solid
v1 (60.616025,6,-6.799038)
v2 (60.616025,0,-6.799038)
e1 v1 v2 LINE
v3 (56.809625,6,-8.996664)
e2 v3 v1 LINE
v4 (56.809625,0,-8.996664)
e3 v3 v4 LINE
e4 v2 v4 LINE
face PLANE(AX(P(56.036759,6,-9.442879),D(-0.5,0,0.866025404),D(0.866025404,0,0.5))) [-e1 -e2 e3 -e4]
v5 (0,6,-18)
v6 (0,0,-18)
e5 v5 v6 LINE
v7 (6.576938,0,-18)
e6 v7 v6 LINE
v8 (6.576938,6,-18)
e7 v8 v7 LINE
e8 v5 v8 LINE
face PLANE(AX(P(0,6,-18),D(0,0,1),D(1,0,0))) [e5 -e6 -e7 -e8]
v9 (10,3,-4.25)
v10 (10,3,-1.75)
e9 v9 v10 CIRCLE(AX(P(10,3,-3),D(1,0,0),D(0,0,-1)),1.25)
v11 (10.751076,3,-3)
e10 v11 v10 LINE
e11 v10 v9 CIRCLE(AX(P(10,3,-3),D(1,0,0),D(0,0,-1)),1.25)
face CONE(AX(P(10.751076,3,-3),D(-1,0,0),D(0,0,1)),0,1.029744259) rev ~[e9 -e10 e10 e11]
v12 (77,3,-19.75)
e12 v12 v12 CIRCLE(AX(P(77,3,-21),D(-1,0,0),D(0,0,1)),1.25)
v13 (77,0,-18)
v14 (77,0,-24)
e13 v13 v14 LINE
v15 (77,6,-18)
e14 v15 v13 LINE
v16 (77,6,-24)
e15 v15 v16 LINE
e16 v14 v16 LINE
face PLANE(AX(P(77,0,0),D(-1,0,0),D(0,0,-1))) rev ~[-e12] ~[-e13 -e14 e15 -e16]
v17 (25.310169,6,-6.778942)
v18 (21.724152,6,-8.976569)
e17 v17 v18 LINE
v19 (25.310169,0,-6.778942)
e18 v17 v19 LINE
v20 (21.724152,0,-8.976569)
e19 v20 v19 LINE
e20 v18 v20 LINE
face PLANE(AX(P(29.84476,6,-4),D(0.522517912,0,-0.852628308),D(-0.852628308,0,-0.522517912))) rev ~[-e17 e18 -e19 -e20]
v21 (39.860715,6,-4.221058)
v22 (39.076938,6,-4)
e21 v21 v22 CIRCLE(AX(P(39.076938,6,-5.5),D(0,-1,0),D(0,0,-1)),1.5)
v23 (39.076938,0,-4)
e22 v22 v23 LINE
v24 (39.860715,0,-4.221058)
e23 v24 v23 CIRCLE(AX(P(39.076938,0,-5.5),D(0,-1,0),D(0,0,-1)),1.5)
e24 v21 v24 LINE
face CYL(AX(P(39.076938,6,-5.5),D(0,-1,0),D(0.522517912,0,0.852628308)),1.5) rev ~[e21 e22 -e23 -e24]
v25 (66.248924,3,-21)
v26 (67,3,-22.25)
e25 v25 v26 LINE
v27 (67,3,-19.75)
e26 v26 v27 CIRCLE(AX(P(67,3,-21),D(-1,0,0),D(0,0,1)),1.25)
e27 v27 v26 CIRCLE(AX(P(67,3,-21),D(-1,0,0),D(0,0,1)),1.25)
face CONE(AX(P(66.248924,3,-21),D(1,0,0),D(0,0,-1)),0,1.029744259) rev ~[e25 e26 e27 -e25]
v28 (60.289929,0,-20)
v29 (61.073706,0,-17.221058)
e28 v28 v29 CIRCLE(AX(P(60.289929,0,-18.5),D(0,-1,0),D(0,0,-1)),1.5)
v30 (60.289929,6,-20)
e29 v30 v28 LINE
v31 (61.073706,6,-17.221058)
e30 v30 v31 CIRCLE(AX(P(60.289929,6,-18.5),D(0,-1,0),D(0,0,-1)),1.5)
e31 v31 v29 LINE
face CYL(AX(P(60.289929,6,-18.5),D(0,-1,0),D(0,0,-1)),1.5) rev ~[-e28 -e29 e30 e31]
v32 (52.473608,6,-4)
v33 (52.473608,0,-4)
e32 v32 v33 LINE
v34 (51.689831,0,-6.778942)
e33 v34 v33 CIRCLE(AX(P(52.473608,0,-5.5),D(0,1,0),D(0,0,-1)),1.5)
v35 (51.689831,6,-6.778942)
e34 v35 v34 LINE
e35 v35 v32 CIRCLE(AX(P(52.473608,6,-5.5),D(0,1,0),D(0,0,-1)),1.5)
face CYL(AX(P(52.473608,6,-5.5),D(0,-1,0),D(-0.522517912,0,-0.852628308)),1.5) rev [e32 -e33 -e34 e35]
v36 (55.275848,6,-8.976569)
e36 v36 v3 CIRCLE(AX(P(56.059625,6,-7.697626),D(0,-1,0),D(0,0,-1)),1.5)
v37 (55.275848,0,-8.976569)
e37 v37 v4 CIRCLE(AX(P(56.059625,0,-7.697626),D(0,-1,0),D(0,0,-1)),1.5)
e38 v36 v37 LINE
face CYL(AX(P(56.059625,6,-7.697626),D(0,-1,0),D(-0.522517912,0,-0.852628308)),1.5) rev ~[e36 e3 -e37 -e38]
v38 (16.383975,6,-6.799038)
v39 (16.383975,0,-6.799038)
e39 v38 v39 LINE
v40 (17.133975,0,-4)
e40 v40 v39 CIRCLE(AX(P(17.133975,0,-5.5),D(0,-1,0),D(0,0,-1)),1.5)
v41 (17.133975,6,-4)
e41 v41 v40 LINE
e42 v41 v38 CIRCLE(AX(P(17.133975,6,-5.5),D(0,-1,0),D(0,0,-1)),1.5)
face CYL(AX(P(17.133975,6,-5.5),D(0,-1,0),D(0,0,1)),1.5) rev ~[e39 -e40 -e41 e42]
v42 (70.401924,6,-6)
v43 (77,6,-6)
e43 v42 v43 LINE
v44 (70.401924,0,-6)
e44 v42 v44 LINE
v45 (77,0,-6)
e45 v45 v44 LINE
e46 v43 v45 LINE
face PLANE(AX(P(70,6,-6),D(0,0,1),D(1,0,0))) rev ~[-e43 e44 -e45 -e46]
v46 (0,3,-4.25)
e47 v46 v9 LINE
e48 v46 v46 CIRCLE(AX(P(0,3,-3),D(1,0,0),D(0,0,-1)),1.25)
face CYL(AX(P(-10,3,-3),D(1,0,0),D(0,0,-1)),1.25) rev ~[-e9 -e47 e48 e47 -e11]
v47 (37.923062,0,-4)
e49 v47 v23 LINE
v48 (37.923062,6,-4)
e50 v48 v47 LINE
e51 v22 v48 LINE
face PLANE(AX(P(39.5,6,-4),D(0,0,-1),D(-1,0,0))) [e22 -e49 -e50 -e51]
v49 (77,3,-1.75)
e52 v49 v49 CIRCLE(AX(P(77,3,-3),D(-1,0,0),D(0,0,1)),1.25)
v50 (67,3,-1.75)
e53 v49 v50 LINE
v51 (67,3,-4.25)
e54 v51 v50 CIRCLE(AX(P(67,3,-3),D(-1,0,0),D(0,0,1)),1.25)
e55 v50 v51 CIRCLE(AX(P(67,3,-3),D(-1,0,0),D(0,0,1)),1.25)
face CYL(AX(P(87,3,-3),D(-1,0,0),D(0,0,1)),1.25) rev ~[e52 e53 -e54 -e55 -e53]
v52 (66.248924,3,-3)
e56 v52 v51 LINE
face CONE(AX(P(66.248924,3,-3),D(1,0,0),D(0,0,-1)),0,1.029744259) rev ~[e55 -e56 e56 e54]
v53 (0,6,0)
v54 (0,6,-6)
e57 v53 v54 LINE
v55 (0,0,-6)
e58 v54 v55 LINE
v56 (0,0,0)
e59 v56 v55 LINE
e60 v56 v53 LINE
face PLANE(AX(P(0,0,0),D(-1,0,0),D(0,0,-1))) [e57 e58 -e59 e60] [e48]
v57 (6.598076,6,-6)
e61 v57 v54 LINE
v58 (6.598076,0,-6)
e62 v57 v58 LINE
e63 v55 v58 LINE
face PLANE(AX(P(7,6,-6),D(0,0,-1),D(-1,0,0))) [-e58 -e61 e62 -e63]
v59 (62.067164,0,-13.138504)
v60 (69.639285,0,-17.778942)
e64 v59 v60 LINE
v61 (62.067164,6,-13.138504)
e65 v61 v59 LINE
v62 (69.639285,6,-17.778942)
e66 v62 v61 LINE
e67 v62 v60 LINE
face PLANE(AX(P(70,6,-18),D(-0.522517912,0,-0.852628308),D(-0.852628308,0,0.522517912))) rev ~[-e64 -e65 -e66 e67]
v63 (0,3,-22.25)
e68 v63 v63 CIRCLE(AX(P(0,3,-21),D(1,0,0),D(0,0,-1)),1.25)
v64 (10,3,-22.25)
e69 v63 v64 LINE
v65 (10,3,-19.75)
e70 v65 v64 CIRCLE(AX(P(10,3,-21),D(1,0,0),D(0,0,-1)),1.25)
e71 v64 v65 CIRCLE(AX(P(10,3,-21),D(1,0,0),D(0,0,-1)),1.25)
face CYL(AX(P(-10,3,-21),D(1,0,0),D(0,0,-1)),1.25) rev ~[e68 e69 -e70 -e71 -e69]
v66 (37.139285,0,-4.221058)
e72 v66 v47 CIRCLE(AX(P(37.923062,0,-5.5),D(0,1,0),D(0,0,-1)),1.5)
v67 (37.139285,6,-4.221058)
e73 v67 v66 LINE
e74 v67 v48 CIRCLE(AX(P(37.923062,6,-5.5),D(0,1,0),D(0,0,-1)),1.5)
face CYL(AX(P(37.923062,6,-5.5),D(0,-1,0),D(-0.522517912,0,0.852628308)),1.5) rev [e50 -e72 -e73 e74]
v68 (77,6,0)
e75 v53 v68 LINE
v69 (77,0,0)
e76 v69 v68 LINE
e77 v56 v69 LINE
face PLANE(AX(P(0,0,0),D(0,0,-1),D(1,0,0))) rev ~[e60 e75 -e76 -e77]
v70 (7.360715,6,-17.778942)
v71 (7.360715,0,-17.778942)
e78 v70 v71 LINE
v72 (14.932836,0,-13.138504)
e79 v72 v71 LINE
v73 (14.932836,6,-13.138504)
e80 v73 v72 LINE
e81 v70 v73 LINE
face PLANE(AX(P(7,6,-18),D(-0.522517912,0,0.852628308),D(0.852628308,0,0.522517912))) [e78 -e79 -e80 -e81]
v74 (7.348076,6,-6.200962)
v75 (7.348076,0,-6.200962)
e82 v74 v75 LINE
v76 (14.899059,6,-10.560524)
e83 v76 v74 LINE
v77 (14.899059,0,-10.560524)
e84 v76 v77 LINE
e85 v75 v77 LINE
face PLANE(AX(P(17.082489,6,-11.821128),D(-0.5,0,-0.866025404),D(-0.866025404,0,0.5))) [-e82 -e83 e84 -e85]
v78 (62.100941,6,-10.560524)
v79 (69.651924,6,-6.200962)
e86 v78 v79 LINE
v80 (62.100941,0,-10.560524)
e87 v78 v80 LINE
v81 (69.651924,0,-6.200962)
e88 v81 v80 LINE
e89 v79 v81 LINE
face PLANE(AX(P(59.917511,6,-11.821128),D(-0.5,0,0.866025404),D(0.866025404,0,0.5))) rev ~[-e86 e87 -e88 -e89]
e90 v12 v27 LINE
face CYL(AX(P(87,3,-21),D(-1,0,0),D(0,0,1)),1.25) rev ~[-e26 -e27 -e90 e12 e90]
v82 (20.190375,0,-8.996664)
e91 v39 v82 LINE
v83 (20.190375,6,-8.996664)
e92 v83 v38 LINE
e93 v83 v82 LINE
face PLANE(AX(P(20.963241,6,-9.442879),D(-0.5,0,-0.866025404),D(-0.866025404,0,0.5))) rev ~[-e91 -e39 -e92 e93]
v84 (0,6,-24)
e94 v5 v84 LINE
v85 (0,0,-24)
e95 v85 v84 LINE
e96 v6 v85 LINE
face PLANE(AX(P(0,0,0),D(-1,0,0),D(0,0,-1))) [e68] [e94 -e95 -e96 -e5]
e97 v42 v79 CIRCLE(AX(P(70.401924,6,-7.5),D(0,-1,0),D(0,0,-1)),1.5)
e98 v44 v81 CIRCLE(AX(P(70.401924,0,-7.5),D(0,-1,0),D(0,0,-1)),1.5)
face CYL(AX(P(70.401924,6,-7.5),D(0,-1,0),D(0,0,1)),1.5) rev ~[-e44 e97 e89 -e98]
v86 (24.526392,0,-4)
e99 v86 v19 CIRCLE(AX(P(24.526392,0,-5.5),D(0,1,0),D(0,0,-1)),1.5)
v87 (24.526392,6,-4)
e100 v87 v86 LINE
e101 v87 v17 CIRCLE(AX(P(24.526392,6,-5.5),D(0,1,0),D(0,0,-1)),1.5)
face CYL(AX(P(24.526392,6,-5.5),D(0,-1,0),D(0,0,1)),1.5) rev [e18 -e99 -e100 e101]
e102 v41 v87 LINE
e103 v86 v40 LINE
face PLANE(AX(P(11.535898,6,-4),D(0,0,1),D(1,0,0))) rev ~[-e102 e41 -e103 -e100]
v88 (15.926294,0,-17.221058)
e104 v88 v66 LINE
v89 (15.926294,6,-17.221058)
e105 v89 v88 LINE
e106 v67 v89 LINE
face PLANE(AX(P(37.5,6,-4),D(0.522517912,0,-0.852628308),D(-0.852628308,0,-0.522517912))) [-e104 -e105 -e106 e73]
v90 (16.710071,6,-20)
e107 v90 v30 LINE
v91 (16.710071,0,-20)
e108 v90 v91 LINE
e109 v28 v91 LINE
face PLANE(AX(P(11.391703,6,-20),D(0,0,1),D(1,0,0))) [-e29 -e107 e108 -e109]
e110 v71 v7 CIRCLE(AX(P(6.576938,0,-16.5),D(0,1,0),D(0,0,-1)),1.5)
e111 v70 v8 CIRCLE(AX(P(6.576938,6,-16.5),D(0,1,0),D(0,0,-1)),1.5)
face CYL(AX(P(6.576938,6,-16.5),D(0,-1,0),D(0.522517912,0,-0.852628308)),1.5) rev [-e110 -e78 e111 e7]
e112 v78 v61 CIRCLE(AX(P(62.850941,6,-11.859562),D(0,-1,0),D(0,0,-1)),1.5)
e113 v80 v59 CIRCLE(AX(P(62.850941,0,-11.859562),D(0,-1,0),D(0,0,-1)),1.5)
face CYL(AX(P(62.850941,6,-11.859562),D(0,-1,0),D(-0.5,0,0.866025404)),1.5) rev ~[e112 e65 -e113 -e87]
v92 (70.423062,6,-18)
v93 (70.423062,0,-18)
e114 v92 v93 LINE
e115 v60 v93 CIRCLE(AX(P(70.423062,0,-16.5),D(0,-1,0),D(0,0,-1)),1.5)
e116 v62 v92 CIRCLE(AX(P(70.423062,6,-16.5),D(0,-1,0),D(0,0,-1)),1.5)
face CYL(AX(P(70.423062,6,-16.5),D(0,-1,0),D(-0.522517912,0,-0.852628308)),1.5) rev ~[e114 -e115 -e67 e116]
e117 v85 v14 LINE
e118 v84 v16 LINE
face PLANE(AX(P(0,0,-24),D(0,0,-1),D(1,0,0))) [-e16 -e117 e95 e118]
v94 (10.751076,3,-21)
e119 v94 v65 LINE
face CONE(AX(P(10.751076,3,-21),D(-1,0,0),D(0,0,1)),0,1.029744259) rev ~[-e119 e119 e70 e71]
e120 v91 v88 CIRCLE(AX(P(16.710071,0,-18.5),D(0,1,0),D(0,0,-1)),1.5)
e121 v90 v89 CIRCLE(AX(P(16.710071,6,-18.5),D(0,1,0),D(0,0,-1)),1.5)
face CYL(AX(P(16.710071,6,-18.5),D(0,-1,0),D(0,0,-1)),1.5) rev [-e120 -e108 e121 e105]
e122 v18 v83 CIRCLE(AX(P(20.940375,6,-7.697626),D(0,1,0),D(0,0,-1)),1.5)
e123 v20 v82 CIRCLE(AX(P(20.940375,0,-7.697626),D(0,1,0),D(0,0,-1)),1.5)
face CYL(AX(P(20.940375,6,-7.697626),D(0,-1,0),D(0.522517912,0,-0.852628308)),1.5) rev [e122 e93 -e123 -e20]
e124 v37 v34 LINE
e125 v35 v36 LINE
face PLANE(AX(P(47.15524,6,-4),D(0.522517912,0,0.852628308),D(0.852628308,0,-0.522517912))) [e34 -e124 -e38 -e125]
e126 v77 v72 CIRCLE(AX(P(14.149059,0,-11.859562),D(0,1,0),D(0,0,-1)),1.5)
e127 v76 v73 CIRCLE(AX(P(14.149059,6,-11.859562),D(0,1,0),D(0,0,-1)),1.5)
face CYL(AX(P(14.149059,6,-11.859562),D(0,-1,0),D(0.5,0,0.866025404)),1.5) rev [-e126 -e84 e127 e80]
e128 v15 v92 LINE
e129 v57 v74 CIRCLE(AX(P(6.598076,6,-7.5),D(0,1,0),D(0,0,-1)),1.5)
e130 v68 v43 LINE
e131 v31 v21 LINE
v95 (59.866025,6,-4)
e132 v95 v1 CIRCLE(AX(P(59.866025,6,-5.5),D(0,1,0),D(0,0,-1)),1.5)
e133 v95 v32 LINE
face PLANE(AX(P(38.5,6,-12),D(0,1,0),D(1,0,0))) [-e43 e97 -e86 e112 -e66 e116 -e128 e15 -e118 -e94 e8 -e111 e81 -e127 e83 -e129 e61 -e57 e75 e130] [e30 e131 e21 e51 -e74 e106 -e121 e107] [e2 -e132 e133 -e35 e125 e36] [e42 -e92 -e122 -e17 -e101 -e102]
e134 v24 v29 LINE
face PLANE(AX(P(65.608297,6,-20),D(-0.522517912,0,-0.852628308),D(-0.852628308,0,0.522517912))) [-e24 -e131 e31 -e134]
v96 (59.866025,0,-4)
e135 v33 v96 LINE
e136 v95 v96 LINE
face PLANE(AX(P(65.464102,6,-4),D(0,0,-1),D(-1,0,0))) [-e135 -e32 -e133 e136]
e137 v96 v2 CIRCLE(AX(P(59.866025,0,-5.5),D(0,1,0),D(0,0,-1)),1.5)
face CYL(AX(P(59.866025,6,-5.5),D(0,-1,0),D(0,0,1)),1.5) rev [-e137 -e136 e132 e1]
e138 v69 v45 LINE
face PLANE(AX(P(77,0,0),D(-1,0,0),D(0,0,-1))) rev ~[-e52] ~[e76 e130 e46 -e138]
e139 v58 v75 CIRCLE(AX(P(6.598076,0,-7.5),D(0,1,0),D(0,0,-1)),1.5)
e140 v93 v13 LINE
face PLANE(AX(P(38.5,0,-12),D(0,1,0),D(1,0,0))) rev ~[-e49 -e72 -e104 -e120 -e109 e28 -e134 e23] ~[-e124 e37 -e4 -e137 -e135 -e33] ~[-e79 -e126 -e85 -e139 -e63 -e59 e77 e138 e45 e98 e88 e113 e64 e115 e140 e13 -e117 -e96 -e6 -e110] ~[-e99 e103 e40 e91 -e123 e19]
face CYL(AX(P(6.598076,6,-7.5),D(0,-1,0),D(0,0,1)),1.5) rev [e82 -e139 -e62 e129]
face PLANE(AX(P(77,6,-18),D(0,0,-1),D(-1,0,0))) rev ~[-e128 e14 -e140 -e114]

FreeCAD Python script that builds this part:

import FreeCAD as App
import Part
import Sketcher
Q = App.Units.Quantity


def edges_at(feature, points):
    """Names of the edges that pass closest to the given points."""
    edges = feature.Shape.Edges
    near = lambda p: min(range(len(edges)), key=lambda i: edges[i].distToShape(Part.Vertex(*p))[0])
    return sorted({f"Edge{near(p) + 1}" for p in points})

doc = App.newDocument("Part")
body = doc.addObject("PartDesign::Body", "Body")

# Sketch on XZ plane
sketch1 = body.newObject("Sketcher::SketchObject", "Sketch")
sketch1.AttachmentSupport = (doc.getObject("XZ_Plane"), [""])
sketch1.MapMode = "FlatFace"
sketch1.addGeometry([
    Part.LineSegment(App.Vector(0, -24, 0), App.Vector(0, 0, 0)),
    Part.LineSegment(App.Vector(0, 0, 0), App.Vector(77, 0, 0)),
    Part.LineSegment(App.Vector(77, 0, 0), App.Vector(77, -24, 0)),
    Part.LineSegment(App.Vector(77, -24, 0), App.Vector(0, -24, 0)),
], False)
sketch1.addConstraint([
    Sketcher.Constraint("Coincident", 0, 2, 1, 1),
    Sketcher.Constraint("Coincident", 1, 2, 2, 1),
    Sketcher.Constraint("Coincident", 2, 2, 3, 1),
    Sketcher.Constraint("Coincident", 3, 2, 0, 1),
    Sketcher.Constraint("Vertical", 0),
    Sketcher.Constraint("Horizontal", 1),
    Sketcher.Constraint("Vertical", 2),
    Sketcher.Constraint("Horizontal", 3),
    Sketcher.Constraint("Coincident", 0, 2, -1, 1),
    Sketcher.Constraint("DistanceX", 1, 1, 1, 2, 77.0),
    Sketcher.Constraint("DistanceY", 0, 1, 0, 2, 24.0),
])
pad1 = body.newObject("PartDesign::Pad", "Pad")
pad1.Profile = sketch1
pad1.Length = 6
pad1.Reversed = True

# Sketch on XZ plane
sketch2 = body.newObject("Sketcher::SketchObject", "Sketch001")
sketch2.AttachmentSupport = (doc.getObject("XZ_Plane"), [""])
sketch2.MapMode = "FlatFace"
sketch2.AttachmentOffset = App.Placement(App.Vector(0, 0, -6), App.Rotation())
sketch2.addGeometry([
    Part.LineSegment(App.Vector(7, -18, 0), App.Vector(0, -18, 0)),  # 0
    Part.LineSegment(App.Vector(0, -18, 0), App.Vector(0, -6, 0)),  # 1
    Part.LineSegment(App.Vector(0, -6, 0), App.Vector(7, -6, 0)),  # 2
    Part.LineSegment(App.Vector(7, -6, 0), App.Vector(17.082489, -11.821128, 0)),  # 3
    Part.LineSegment(App.Vector(17.082489, -11.821128, 0), App.Vector(7, -18, 0)),  # 4
], False)
sketch2.addConstraint([
    Sketcher.Constraint("Coincident", 0, 2, 1, 1),
    Sketcher.Constraint("Coincident", 1, 2, 2, 1),
    Sketcher.Constraint("Coincident", 2, 2, 3, 1),
    Sketcher.Constraint("Coincident", 3, 2, 4, 1),
    Sketcher.Constraint("Coincident", 4, 2, 0, 1),
    Sketcher.Constraint("Horizontal", 0),
    Sketcher.Constraint("Vertical", 1),
    Sketcher.Constraint("Horizontal", 2),
    Sketcher.Constraint("PointOnObject", 0, 2, -2),
    Sketcher.Constraint("Vertical", 2, 2, 4, 2),
    Sketcher.Constraint("DistanceX", 0, 2, 0, 1, 7.0),
    Sketcher.Constraint("DistanceY", 1, 1, 1, 2, 12.0),
    Sketcher.Constraint("Angle", 3, Q("-30 deg")),
    Sketcher.Constraint("DistanceY", 0, 2, -1, 1, 18.0),
    Sketcher.Constraint("DistanceX", -1, 1, 3, 2, 17.082489),
])
pocket1 = body.newObject("PartDesign::Pocket", "Pocket")
pocket1.Profile = sketch2
pocket1.Type = "UpToFirst"
pocket1.Reversed = True

# Sketch on XZ plane
sketch3 = body.newObject("Sketcher::SketchObject", "Sketch002")
sketch3.AttachmentSupport = (doc.getObject("XZ_Plane"), [""])
sketch3.MapMode = "FlatFace"
sketch3.AttachmentOffset = App.Placement(App.Vector(0, 0, -6), App.Rotation())
sketch3.addGeometry([
    Part.LineSegment(App.Vector(65.608297, -20, 0), App.Vector(11.391703, -20, 0)),
    Part.LineSegment(App.Vector(11.391703, -20, 0), App.Vector(37.5, -4, 0)),
    Part.LineSegment(App.Vector(37.5, -4, 0), App.Vector(39.5, -4, 0)),
    Part.LineSegment(App.Vector(39.5, -4, 0), App.Vector(65.608297, -20, 0)),
], False)
sketch3.addConstraint([
    Sketcher.Constraint("Coincident", 0, 2, 1, 1),
    Sketcher.Constraint("Coincident", 1, 2, 2, 1),
    Sketcher.Constraint("Coincident", 2, 2, 3, 1),
    Sketcher.Constraint("Coincident", 3, 2, 0, 1),
    Sketcher.Constraint("Horizontal", 0),
    Sketcher.Constraint("Horizontal", 2),
    Sketcher.Constraint("Equal", 1, 3),
    Sketcher.Constraint("DistanceX", 2, 1, 2, 2, 2.0),
    Sketcher.Constraint("DistanceY", 0, 2, -1, 1, 20.0),
    Sketcher.Constraint("DistanceY", 1, 2, -1, 1, 4.0),
    Sketcher.Constraint("DistanceX", -1, 1, 1, 2, 37.5),
    Sketcher.Constraint("Distance", 1, 30.62096),
])
pocket2 = body.newObject("PartDesign::Pocket", "Pocket001")
pocket2.Profile = sketch3
pocket2.Type = "UpToFirst"
pocket2.Reversed = True

# Sketch on XZ plane
sketch4 = body.newObject("Sketcher::SketchObject", "Sketch003")
sketch4.AttachmentSupport = (doc.getObject("XZ_Plane"), [""])
sketch4.MapMode = "FlatFace"
sketch4.AttachmentOffset = App.Placement(App.Vector(0, 0, -6), App.Rotation())
sketch4.addGeometry([
    Part.LineSegment(App.Vector(77, -18, 0), App.Vector(70, -18, 0)),  # 0
    Part.LineSegment(App.Vector(70, -18, 0), App.Vector(59.917511, -11.821128, 0)),  # 1
    Part.LineSegment(App.Vector(59.917511, -11.821128, 0), App.Vector(70, -6, 0)),  # 2
    Part.LineSegment(App.Vector(70, -6, 0), App.Vector(77, -6, 0)),  # 3
    Part.LineSegment(App.Vector(77, -6, 0), App.Vector(77, -18, 0)),  # 4
], False)
sketch4.addConstraint([
    Sketcher.Constraint("Coincident", 0, 2, 1, 1),
    Sketcher.Constraint("Coincident", 1, 2, 2, 1),
    Sketcher.Constraint("Coincident", 2, 2, 3, 1),
    Sketcher.Constraint("Coincident", 3, 2, 4, 1),
    Sketcher.Constraint("Coincident", 4, 2, 0, 1),
    Sketcher.Constraint("Horizontal", 0),
    Sketcher.Constraint("Horizontal", 3),
    Sketcher.Constraint("Vertical", 4),
    Sketcher.Constraint("Vertical", 0, 2, 2, 2),
    Sketcher.Constraint("DistanceX", 0, 2, 0, 1, 7.0),
    Sketcher.Constraint("DistanceY", 4, 2, 4, 1, 12.0),
    Sketcher.Constraint("Angle", 2, Q("30 deg")),
    Sketcher.Constraint("DistanceX", -1, 1, 0, 2, 70.0),
    Sketcher.Constraint("DistanceY", 0, 2, -1, 1, 18.0),
    Sketcher.Constraint("DistanceX", -1, 1, 1, 2, 59.917511),
])
pocket3 = body.newObject("PartDesign::Pocket", "Pocket002")
pocket3.Profile = sketch4
pocket3.Type = "UpToFirst"
pocket3.Reversed = True

# Sketch on XZ plane
sketch5 = body.newObject("Sketcher::SketchObject", "Sketch004")
sketch5.AttachmentSupport = (doc.getObject("XZ_Plane"), [""])
sketch5.MapMode = "FlatFace"
sketch5.AttachmentOffset = App.Placement(App.Vector(0, 0, -6), App.Rotation())
sketch5.addGeometry([
    Part.LineSegment(App.Vector(20.963241, -9.442879, 0), App.Vector(11.535898, -4, 0)),
    Part.LineSegment(App.Vector(11.535898, -4, 0), App.Vector(29.84476, -4, 0)),
    Part.LineSegment(App.Vector(29.84476, -4, 0), App.Vector(20.963241, -9.442879, 0)),
], False)
sketch5.addConstraint([
    Sketcher.Constraint("Coincident", 0, 2, 1, 1),
    Sketcher.Constraint("Coincident", 1, 2, 2, 1),
    Sketcher.Constraint("Coincident", 2, 2, 0, 1),
    Sketcher.Constraint("Horizontal", 1),
    Sketcher.Constraint("Angle", 0, Q("150 deg")),
    Sketcher.Constraint("DistanceY", 0, 2, -1, 1, 4.0),
    Sketcher.Constraint("DistanceX", 1, 1, 1, 2, 18.308862),
    Sketcher.Constraint("DistanceX", -1, 1, 0, 2, 11.535898),
    Sketcher.Constraint("DistanceX", -1, 1, 2, 2, 20.963241),
])
pocket4 = body.newObject("PartDesign::Pocket", "Pocket003")
pocket4.Profile = sketch5
pocket4.Type = "UpToFirst"
pocket4.Reversed = True

# Sketch on XZ plane
sketch6 = body.newObject("Sketcher::SketchObject", "Sketch005")
sketch6.AttachmentSupport = (doc.getObject("XZ_Plane"), [""])
sketch6.MapMode = "FlatFace"
sketch6.AttachmentOffset = App.Placement(App.Vector(0, 0, -6), App.Rotation())
sketch6.addGeometry([
    Part.LineSegment(App.Vector(56.036759, -9.442879, 0), App.Vector(47.15524, -4, 0)),
    Part.LineSegment(App.Vector(47.15524, -4, 0), App.Vector(65.464102, -4, 0)),
    Part.LineSegment(App.Vector(65.464102, -4, 0), App.Vector(56.036759, -9.442879, 0)),
], False)
sketch6.addConstraint([
    Sketcher.Constraint("Coincident", 0, 2, 1, 1),
    Sketcher.Constraint("Coincident", 1, 2, 2, 1),
    Sketcher.Constraint("Coincident", 2, 2, 0, 1),
    Sketcher.Constraint("Horizontal", 1),
    Sketcher.Constraint("Angle", 2, Q("-150 deg")),
    Sketcher.Constraint("DistanceY", 0, 2, -1, 1, 4.0),
    Sketcher.Constraint("DistanceX", 1, 1, 1, 2, 18.308862),
    Sketcher.Constraint("DistanceX", -1, 1, 1, 2, 65.464102),
    Sketcher.Constraint("DistanceX", -1, 1, 2, 2, 56.036759),
])
pocket5 = body.newObject("PartDesign::Pocket", "Pocket004")
pocket5.Profile = sketch6
pocket5.Type = "UpToFirst"
pocket5.Reversed = True

# Sketch on YZ plane
sketch7 = body.newObject("Sketcher::SketchObject", "Sketch006")
sketch7.AttachmentSupport = (doc.getObject("YZ_Plane"), [""])
sketch7.MapMode = "FlatFace"
sketch7.addGeometry([
    Part.Circle(App.Vector(3, -21, 0), App.Vector(0, 0, 1), 1.25),
    Part.Circle(App.Vector(3, -3, 0), App.Vector(0, 0, 1), 1.25),
], False)
sketch7.addConstraint([
    Sketcher.Constraint("Equal", 0, 1),
    Sketcher.Constraint("Vertical", 0, 3, 1, 3),
    Sketcher.Constraint("Diameter", 0, 2.5),
    Sketcher.Constraint("DistanceX", -1, 1, 0, 3, 3.0),
    Sketcher.Constraint("DistanceY", 0, 3, -1, 1, 21.0),
    Sketcher.Constraint("DistanceY", 1, 3, -1, 1, 3.0),
])
doc.recompute()
hole = body.newObject("PartDesign::Hole", "Hole")
hole.Profile = sketch7
hole.ThreadType = "None"
hole.Diameter = 2.5
hole.DepthType = "Dimension"
hole.Depth = 10
hole.DrillPoint = "Angled"
hole.DrillPointAngle = 118
hole.Reversed = True

# Sketch on YZ plane
sketch8 = body.newObject("Sketcher::SketchObject", "Sketch007")
sketch8.AttachmentSupport = (doc.getObject("YZ_Plane"), [""])
sketch8.MapMode = "FlatFace"
sketch8.AttachmentOffset = App.Placement(App.Vector(0, 0, 77), App.Rotation())
sketch8.addGeometry([
    Part.Circle(App.Vector(3, -3, 0), App.Vector(0, 0, 1), 1.25),
    Part.Circle(App.Vector(3, -21, 0), App.Vector(0, 0, 1), 1.25),
], False)
sketch8.addConstraint([
    Sketcher.Constraint("Equal", 0, 1),
    Sketcher.Constraint("Vertical", 0, 3, 1, 3),
    Sketcher.Constraint("Diameter", 0, 2.5),
    Sketcher.Constraint("DistanceX", -1, 1, 0, 3, 3.0),
    Sketcher.Constraint("DistanceY", 0, 3, -1, 1, 3.0),
    Sketcher.Constraint("DistanceY", 1, 3, -1, 1, 21.0),
])
doc.recompute()
hole2 = body.newObject("PartDesign::Hole", "Hole001")
hole2.Profile = sketch8
hole2.ThreadType = "None"
hole2.Diameter = 2.5
hole2.DepthType = "Dimension"
hole2.Depth = 10
hole2.DrillPoint = "Angled"
hole2.DrillPointAngle = 118
doc.recompute()

fillet = body.newObject("PartDesign::Fillet", "Fillet")
fillet.Base = (hole2, edges_at(hole2, [
    (7, 3, -18),
    (17.082, 3, -11.821),
    (7, 3, -6),
    (70, 3, -6),
    (59.918, 3, -11.821),
    (70, 3, -18),
    (37.5, 3, -4),
    (11.392, 3, -20),
    (65.608, 3, -20),
    (39.5, 3, -4),
    (20.963, 3, -9.443),
    (29.845, 3, -4),
    (11.536, 3, -4),
    (65.464, 3, -4),
    (47.155, 3, -4),
    (56.037, 3, -9.443),
]))
fillet.Radius = 1.5

doc.recompute()
